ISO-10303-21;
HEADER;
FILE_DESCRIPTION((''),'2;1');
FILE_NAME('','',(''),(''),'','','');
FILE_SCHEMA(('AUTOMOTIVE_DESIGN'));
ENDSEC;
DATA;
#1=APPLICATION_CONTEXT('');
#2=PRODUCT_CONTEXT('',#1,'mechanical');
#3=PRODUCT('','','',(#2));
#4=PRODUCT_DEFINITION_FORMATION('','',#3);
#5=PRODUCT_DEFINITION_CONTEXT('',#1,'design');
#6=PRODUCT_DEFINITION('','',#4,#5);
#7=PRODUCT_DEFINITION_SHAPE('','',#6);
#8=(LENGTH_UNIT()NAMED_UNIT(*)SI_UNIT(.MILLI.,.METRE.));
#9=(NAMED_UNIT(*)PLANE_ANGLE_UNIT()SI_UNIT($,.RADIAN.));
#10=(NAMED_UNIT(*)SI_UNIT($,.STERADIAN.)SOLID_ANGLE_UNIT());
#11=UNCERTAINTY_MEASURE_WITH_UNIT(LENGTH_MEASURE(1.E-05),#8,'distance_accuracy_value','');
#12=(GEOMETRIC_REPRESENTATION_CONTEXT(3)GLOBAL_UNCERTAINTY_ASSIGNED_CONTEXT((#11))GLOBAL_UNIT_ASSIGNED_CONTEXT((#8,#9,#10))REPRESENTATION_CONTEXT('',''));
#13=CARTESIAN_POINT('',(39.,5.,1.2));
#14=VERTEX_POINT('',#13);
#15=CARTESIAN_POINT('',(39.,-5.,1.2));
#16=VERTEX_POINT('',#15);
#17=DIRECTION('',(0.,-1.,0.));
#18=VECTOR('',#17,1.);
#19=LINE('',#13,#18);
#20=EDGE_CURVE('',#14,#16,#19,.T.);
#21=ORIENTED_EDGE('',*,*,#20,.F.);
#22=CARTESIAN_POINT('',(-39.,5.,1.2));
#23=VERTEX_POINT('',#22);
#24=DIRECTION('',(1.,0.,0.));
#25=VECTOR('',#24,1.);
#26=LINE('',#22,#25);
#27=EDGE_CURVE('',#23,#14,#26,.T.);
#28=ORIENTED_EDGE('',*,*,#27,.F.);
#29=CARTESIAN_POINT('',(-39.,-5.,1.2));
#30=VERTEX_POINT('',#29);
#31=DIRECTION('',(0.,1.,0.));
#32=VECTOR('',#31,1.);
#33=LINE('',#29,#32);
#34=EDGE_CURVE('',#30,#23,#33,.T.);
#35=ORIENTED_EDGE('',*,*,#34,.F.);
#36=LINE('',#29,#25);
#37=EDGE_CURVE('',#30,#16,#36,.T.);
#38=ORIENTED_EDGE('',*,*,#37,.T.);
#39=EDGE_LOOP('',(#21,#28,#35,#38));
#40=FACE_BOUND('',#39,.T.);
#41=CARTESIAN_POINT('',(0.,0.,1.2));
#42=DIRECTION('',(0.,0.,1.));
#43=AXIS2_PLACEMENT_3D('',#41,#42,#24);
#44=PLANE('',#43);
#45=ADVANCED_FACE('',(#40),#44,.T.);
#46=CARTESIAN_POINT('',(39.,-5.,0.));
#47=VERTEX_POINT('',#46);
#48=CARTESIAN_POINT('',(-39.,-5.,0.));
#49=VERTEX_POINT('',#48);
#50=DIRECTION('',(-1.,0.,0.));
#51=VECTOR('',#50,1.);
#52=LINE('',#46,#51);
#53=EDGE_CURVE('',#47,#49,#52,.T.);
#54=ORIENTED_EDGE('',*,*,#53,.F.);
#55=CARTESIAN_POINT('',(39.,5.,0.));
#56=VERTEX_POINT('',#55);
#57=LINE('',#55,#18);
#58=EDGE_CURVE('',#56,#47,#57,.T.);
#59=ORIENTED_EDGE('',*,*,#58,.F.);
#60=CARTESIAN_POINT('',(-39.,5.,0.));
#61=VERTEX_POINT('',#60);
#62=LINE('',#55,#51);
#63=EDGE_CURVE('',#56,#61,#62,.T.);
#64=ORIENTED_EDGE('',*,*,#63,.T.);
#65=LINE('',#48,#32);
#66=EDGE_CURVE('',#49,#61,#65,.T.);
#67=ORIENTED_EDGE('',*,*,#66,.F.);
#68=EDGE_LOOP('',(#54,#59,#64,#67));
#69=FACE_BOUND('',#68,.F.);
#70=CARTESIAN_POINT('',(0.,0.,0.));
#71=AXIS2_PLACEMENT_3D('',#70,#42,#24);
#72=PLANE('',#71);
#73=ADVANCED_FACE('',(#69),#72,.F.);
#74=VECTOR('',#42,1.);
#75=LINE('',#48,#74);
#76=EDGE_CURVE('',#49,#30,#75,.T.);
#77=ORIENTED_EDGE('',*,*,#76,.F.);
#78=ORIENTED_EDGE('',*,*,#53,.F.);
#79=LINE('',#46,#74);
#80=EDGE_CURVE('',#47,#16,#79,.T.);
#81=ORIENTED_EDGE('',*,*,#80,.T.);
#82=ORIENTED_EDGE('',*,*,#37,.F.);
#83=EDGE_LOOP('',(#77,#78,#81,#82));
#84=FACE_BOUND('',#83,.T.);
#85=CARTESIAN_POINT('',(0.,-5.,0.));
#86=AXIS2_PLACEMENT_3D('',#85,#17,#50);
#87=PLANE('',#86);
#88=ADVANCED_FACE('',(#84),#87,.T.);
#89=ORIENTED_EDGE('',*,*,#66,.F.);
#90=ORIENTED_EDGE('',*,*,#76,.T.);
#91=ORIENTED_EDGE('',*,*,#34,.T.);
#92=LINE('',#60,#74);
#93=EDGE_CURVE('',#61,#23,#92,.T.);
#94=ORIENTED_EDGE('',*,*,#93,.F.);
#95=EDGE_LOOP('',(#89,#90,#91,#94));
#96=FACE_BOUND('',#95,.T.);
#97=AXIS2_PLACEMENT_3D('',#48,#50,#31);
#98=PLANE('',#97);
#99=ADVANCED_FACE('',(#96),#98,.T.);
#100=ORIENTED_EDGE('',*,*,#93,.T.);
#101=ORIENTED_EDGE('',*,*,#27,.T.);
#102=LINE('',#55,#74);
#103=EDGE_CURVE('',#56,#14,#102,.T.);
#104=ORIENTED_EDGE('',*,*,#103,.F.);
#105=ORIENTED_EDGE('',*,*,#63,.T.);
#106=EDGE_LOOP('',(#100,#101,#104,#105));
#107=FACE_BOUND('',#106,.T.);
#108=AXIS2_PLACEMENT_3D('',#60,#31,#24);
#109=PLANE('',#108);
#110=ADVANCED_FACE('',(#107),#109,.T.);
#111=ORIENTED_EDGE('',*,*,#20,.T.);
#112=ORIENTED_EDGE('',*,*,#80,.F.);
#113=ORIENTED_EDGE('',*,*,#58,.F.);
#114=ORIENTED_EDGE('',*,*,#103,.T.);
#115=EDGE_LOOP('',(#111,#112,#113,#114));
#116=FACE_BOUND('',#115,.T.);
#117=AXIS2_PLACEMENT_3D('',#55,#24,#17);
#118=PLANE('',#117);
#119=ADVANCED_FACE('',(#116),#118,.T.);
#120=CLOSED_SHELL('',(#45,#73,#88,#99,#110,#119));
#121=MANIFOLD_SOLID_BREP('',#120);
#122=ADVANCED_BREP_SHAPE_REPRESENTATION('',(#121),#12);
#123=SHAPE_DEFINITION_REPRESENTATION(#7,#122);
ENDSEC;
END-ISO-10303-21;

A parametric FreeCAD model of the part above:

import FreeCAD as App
import Part
import Sketcher

V = App.Vector

doc = App.newDocument("Part")
body = doc.addObject("PartDesign::Body", "Body")

sketch1 = body.newObject("Sketcher::SketchObject", "Sketch")
sketch1.AttachmentSupport = (doc.getObject("XY_Plane"), [""])
sketch1.MapMode = "FlatFace"
sketch1.addGeometry([
    Part.LineSegment(V(-39, 5, 0), V(-39, -5, 0)),
    Part.LineSegment(V(-39, -5, 0), V(39, -5, 0)),
    Part.LineSegment(V(39, -5, 0), V(39, 5, 0)),
    Part.LineSegment(V(39, 5, 0), V(-39, 5, 0)),
], False)
sketch1.addConstraint([
    Sketcher.Constraint("Coincident", 0, 2, 1, 1),
    Sketcher.Constraint("Coincident", 1, 2, 2, 1),
    Sketcher.Constraint("Coincident", 2, 2, 3, 1),
    Sketcher.Constraint("Coincident", 3, 2, 0, 1),
    Sketcher.Constraint("Vertical", 0),
    Sketcher.Constraint("Horizontal", 1),
    Sketcher.Constraint("Vertical", 2),
    Sketcher.Constraint("Horizontal", 3),
    Sketcher.Constraint("Symmetric", 0, 2, 2, 2, -1, 1),
    Sketcher.Constraint("DistanceX", 1, 1, 1, 2, 78.0),
    Sketcher.Constraint("DistanceY", 0, 2, 0, 1, 10.0),
])
pad1 = body.newObject("PartDesign::Pad", "Pad")
pad1.Profile = sketch1
pad1.Length = 1.2

doc.recompute()
